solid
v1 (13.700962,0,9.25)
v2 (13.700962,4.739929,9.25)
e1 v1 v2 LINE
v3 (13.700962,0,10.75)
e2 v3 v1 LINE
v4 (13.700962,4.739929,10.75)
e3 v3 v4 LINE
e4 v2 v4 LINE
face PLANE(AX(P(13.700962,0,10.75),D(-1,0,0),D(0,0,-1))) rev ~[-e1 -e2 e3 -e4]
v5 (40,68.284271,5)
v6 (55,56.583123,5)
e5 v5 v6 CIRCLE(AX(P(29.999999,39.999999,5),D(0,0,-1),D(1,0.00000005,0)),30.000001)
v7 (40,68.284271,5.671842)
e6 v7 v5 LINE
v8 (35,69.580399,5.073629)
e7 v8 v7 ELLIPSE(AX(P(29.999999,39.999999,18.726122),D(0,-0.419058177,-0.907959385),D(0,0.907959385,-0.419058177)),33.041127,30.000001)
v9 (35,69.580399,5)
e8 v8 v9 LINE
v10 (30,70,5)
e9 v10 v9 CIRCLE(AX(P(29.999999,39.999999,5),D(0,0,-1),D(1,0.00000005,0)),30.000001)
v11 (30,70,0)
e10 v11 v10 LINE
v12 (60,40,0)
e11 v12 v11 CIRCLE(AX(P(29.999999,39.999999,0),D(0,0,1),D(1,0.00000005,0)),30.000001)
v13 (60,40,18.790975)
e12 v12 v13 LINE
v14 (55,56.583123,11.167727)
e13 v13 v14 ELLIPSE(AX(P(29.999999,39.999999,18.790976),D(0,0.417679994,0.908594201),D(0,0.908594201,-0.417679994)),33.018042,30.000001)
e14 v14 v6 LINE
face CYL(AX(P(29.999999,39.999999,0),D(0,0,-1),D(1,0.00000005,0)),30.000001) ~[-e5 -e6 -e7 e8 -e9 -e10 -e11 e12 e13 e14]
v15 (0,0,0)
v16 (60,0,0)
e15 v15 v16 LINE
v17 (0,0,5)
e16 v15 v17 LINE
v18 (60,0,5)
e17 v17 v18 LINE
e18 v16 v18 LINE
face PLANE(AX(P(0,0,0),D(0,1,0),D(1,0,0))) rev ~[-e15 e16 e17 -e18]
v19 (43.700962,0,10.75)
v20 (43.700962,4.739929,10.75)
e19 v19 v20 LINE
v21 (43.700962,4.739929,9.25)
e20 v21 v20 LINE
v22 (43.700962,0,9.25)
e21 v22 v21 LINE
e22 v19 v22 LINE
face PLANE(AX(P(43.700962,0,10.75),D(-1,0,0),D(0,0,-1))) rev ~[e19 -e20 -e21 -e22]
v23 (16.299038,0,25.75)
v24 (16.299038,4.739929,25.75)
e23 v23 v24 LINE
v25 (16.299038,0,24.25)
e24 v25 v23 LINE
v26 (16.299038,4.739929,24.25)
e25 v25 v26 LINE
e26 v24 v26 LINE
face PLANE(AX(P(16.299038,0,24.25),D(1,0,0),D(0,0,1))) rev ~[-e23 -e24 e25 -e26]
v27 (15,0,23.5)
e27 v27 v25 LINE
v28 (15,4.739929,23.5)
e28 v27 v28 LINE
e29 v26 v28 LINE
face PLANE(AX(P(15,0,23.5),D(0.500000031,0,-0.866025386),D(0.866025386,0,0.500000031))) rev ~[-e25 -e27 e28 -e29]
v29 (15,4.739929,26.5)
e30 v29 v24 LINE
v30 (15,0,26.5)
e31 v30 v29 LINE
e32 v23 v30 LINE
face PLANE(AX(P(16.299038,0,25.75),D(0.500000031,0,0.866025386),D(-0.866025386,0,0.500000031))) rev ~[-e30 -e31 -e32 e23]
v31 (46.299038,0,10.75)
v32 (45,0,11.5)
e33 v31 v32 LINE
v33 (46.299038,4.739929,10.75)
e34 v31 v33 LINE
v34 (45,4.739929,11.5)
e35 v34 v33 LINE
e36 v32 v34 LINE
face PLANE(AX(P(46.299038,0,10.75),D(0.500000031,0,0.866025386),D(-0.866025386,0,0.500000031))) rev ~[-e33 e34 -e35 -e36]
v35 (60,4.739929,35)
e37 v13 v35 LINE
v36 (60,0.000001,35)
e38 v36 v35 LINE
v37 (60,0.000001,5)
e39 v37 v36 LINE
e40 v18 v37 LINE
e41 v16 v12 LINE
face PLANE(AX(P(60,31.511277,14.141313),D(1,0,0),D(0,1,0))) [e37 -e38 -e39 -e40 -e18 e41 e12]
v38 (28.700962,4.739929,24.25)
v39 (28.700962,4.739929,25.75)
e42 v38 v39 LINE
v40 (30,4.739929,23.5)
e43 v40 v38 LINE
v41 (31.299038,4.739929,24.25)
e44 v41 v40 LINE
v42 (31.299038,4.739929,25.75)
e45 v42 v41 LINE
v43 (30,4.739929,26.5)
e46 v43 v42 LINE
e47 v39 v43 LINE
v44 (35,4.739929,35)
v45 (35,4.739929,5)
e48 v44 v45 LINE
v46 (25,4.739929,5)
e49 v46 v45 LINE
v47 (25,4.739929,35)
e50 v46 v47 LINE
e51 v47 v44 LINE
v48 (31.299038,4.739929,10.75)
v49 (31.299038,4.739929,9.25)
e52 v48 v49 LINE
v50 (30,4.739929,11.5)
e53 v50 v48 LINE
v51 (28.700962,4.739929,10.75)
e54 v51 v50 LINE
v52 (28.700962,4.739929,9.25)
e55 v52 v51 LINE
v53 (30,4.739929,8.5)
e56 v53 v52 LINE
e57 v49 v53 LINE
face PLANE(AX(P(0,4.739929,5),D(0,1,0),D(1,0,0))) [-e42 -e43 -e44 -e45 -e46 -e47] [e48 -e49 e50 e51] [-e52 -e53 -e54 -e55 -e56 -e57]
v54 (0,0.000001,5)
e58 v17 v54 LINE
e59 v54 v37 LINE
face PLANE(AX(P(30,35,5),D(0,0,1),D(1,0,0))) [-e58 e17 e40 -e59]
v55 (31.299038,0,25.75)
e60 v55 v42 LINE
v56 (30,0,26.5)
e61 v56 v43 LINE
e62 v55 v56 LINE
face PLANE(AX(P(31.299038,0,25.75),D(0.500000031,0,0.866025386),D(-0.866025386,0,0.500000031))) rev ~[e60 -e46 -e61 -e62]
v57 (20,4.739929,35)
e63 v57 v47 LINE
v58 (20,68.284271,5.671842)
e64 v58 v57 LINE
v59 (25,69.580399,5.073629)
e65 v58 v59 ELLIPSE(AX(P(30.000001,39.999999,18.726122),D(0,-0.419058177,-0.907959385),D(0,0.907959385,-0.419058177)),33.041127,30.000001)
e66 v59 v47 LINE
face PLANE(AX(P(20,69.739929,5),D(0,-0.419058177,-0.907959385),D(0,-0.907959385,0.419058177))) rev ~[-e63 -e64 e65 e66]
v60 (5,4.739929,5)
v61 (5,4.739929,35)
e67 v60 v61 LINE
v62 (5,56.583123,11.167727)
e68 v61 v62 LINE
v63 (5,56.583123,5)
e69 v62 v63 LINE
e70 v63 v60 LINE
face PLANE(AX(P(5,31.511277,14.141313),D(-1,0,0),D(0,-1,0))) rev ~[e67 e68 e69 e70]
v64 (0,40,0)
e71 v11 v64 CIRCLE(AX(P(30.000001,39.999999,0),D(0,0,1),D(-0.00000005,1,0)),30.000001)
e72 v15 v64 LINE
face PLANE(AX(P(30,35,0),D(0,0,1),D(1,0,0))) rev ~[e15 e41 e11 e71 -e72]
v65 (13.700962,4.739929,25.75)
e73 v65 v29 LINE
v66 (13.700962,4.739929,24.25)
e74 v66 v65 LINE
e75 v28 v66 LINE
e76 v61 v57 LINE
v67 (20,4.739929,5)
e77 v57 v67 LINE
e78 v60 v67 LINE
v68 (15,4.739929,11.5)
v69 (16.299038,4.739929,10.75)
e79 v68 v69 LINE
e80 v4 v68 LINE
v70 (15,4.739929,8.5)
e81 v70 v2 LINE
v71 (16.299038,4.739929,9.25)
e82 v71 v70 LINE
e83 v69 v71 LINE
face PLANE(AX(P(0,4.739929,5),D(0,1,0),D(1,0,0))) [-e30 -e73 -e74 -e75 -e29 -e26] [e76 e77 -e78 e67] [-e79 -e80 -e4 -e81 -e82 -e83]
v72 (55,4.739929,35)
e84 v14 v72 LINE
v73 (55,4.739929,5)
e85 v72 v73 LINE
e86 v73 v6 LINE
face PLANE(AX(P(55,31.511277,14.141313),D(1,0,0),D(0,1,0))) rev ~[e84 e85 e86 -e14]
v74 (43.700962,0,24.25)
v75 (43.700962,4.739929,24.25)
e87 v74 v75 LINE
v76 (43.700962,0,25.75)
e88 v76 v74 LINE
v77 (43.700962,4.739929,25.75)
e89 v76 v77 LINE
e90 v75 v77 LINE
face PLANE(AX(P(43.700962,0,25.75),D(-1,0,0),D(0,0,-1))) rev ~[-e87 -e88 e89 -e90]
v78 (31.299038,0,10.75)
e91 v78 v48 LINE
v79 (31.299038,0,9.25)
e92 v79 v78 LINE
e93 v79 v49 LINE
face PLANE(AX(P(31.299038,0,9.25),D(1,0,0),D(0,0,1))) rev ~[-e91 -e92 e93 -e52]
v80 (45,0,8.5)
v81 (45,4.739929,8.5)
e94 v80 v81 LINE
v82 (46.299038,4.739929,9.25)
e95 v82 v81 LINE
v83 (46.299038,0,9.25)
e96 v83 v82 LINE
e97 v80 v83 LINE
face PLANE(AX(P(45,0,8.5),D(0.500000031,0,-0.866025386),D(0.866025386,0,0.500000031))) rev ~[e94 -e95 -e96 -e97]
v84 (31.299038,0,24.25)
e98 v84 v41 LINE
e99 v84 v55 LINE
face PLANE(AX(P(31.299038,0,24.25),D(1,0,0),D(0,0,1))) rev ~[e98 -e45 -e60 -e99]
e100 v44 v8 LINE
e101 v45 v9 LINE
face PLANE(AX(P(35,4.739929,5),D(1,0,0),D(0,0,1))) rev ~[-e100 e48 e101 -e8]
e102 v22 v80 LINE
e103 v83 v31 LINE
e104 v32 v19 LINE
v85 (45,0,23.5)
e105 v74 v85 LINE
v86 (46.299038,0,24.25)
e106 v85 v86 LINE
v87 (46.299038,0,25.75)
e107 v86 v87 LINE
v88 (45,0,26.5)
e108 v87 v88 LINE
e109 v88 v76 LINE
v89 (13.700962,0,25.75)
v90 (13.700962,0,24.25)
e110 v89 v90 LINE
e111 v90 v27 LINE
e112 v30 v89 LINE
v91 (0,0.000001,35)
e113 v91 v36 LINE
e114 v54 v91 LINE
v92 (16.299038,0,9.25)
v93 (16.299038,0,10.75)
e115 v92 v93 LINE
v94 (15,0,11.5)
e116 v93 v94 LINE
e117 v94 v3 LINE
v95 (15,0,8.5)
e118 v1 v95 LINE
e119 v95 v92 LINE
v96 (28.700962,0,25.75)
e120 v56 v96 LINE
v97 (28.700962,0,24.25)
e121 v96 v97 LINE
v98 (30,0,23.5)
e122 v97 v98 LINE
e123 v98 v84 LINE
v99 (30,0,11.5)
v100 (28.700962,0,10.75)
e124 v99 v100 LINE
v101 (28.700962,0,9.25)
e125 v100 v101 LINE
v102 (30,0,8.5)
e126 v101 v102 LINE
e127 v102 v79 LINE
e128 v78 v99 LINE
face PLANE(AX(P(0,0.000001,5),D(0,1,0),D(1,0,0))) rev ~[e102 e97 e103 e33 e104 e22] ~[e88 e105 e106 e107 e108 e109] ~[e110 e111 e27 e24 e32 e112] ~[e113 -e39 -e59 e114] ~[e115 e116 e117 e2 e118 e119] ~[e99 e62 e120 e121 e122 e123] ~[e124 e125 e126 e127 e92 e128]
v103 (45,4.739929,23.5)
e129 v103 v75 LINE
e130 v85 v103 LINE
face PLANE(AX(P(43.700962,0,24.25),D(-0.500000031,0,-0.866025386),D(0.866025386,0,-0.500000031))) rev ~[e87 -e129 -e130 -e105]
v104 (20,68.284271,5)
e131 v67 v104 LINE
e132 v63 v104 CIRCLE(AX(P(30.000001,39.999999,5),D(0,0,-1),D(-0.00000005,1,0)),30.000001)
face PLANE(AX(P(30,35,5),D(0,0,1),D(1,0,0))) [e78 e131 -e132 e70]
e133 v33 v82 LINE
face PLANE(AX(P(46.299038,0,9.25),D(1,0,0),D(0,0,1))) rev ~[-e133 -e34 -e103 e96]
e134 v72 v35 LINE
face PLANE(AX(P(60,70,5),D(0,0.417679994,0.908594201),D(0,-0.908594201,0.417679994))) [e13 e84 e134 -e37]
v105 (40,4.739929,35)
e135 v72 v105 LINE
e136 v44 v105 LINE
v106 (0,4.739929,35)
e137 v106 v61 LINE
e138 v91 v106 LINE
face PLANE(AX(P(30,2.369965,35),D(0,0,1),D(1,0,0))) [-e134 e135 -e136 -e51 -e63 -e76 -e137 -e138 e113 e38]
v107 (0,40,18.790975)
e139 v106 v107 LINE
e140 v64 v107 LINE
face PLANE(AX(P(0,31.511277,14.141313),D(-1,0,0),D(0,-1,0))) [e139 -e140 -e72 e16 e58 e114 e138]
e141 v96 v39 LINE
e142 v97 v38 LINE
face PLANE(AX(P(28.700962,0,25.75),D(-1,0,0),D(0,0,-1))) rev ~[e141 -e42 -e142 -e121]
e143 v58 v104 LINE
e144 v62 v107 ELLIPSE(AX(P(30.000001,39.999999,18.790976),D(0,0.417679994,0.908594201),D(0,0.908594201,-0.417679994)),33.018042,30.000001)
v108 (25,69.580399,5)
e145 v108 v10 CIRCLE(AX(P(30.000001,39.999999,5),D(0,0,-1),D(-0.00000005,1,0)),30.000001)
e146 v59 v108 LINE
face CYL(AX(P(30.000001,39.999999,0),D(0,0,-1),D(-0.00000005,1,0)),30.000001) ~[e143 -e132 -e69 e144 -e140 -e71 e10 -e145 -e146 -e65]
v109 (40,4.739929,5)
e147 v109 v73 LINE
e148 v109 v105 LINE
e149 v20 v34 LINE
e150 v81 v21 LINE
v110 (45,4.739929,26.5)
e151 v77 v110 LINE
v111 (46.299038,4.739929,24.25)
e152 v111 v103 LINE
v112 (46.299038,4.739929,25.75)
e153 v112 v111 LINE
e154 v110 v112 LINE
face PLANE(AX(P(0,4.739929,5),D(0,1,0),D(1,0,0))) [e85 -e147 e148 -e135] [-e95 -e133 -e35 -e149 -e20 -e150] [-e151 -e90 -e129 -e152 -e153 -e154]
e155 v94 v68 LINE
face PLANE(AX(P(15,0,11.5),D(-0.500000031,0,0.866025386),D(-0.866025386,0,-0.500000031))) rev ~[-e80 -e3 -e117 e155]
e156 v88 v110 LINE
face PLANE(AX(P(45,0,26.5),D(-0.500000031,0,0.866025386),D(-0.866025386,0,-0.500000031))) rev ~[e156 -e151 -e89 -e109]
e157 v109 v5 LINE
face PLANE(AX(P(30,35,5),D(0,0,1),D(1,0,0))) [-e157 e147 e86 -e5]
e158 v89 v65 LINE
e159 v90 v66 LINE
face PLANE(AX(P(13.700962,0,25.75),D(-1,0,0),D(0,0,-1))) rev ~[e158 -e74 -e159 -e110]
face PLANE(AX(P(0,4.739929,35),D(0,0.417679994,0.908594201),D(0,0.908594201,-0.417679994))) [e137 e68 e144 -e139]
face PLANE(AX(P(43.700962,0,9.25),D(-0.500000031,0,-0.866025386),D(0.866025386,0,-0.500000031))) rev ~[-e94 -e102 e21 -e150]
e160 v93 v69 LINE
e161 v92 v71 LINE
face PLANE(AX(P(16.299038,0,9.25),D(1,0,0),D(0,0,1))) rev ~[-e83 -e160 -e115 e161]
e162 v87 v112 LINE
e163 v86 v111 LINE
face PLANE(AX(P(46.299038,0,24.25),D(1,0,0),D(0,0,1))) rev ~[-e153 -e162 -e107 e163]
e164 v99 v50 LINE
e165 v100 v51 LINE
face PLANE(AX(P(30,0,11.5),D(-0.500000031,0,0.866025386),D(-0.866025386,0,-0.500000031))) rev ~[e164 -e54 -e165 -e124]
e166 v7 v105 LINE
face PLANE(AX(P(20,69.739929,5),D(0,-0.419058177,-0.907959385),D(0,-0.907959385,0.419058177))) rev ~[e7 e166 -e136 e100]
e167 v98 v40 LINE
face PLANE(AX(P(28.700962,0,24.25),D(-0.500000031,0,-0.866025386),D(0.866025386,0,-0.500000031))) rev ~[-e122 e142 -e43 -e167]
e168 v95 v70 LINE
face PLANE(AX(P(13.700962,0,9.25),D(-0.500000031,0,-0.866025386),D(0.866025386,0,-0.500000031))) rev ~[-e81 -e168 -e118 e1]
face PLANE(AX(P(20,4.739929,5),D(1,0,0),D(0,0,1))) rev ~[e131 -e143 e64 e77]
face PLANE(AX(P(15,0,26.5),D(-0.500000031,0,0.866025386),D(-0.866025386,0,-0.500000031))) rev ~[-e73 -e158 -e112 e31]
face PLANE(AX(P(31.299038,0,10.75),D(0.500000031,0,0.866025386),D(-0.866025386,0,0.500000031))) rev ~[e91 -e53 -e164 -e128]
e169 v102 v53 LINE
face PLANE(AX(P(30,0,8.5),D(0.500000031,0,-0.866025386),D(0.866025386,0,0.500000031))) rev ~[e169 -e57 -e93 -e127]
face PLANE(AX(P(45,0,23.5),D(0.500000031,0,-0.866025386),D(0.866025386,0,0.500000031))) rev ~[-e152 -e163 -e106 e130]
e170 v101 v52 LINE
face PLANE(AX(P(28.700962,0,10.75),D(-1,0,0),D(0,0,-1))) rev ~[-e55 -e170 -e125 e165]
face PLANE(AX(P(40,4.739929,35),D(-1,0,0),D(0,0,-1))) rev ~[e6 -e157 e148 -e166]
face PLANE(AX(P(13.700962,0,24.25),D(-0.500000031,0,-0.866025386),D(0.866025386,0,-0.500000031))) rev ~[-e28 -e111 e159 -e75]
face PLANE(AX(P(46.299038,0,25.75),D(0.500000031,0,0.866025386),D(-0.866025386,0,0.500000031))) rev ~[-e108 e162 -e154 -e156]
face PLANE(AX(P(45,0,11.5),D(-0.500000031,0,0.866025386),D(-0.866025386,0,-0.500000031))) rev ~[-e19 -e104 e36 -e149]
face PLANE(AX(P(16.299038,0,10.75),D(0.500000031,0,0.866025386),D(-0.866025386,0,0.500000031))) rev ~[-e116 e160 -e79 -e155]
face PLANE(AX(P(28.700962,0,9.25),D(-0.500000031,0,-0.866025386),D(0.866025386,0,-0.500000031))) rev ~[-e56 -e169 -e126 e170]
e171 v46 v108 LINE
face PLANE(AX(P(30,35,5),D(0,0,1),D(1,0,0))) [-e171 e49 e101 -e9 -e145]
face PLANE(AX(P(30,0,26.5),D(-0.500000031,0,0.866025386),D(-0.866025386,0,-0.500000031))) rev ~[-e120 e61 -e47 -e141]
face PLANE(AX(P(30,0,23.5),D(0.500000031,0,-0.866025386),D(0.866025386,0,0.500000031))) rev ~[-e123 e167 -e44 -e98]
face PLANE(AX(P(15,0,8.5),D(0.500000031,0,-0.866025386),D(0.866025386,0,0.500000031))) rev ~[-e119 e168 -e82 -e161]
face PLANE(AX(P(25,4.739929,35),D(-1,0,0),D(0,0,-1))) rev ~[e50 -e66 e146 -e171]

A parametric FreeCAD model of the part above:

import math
import FreeCAD as App
import Part
import Sketcher

V = App.Vector
Q = App.Units.Quantity

doc = App.newDocument("Part")
params = doc.addObject("Spreadsheet::Sheet", "Params")
for row, (alias, value) in enumerate([
    ("sketch1_width", "60 mm"),
    ("sketch1_height", "70 mm"),
    ("pad1_length", "5 mm"),
    ("sketch2_width", "60 mm"),
    ("pad2_length", "30 mm"),
    ("sketch3_height", "1.5 mm"),
    ("pocket1_length", "25 mm"),
    ("sketch4_height", "30 mm"),
    ("pad3_length", "5 mm"),
    ("sketch5_height", "30 mm"),
    ("pad4_length", "5 mm"),
    ("sketch6_width", "5 mm"),
    ("sketch6_height", "30 mm"),
    ("pad5_length", "65 mm"),
    ("sketch7_width", "65 mm"),
    ("pocket2_length", "25 mm"),
    ("sketch8_radius", "30.000001 mm"),
    ("sketch8_width", "10 mm"),
    ("sketch8_height", "40 mm"),
    ("pocket3_length", "25 mm"),
], start=1):
    params.set(f"A{row}", alias)
    params.set(f"B{row}", "=" + value)
    params.setAlias(f"B{row}", alias)

body = doc.addObject("PartDesign::Body", "Body")

sketch1 = body.newObject("Sketcher::SketchObject", "Sketch")
sketch1.AttachmentSupport = (doc.getObject("XY_Plane"), [""])
sketch1.MapMode = "FlatFace"
sketch1.addGeometry(Part.LineSegment(V(0, 70, 0), V(0, 0, 0)), False)
sketch1.addGeometry(Part.LineSegment(V(0, 0, 0), V(60, 0, 0)), False)
sketch1.addGeometry(Part.LineSegment(V(60, 0, 0), V(60, 70, 0)), False)
sketch1.addGeometry(Part.LineSegment(V(60, 70, 0), V(0, 70, 0)), False)
sketch1.addConstraint(Sketcher.Constraint("Coincident", 0, 2, 1, 1))
sketch1.addConstraint(Sketcher.Constraint("Coincident", 1, 2, 2, 1))
sketch1.addConstraint(Sketcher.Constraint("Coincident", 2, 2, 3, 1))
sketch1.addConstraint(Sketcher.Constraint("Coincident", 3, 2, 0, 1))
sketch1.addConstraint(Sketcher.Constraint("Vertical", 0))
sketch1.addConstraint(Sketcher.Constraint("Horizontal", 1))
sketch1.addConstraint(Sketcher.Constraint("Vertical", 2))
sketch1.addConstraint(Sketcher.Constraint("Horizontal", 3))
sketch1.addConstraint(Sketcher.Constraint("Coincident", 0, 2, -1, 1))
sketch1.addConstraint(Sketcher.Constraint("DistanceX", 1, 1, 1, 2, Q("60 mm")))
sketch1.addConstraint(Sketcher.Constraint("DistanceY", 0, 2, 0, 1, Q("70 mm")))
sketch1.setExpression("Constraints[9]", "Params.sketch1_width")
sketch1.setExpression("Constraints[10]", "Params.sketch1_height")
pad1 = body.newObject("PartDesign::Pad", "Pad")
pad1.Profile = sketch1
pad1.setExpression("Length", "Params.pad1_length")

sketch2 = body.newObject("Sketcher::SketchObject", "Sketch001")
sketch2.AttachmentSupport = (doc.getObject("XY_Plane"), [""])
sketch2.MapMode = "FlatFace"
sketch2.AttachmentOffset = App.Placement(V(0, 0, 5), App.Rotation())
sketch2.addGeometry(Part.LineSegment(V(0, 4.7, 0), V(0, 0, 0)), False)
sketch2.addGeometry(Part.LineSegment(V(0, 0, 0), V(60, 0, 0)), False)
sketch2.addGeometry(Part.LineSegment(V(60, 0, 0), V(60, 4.7, 0)), False)
sketch2.addGeometry(Part.LineSegment(V(60, 4.7, 0), V(0, 4.7, 0)), False)
sketch2.addConstraint(Sketcher.Constraint("Coincident", 0, 2, 1, 1))
sketch2.addConstraint(Sketcher.Constraint("Coincident", 1, 2, 2, 1))
sketch2.addConstraint(Sketcher.Constraint("Coincident", 2, 2, 3, 1))
sketch2.addConstraint(Sketcher.Constraint("Coincident", 3, 2, 0, 1))
sketch2.addConstraint(Sketcher.Constraint("Vertical", 0))
sketch2.addConstraint(Sketcher.Constraint("Horizontal", 1))
sketch2.addConstraint(Sketcher.Constraint("Vertical", 2))
sketch2.addConstraint(Sketcher.Constraint("Horizontal", 3))
sketch2.addConstraint(Sketcher.Constraint("Coincident", 0, 2, -1, 1))
sketch2.addConstraint(Sketcher.Constraint("DistanceX", 1, 1, 1, 2, Q("60 mm")))
sketch2.addConstraint(Sketcher.Constraint("DistanceY", 0, 2, 0, 1, Q("4.739929 mm")))
sketch2.setExpression("Constraints[9]", "Params.sketch2_width")
pad2 = body.newObject("PartDesign::Pad", "Pad001")
pad2.Profile = sketch2
pad2.setExpression("Length", "Params.pad2_length")

sketch3 = body.newObject("Sketcher::SketchObject", "Sketch002")
sketch3.AttachmentSupport = (doc.getObject("XZ_Plane"), [""])
sketch3.MapMode = "FlatFace"
sketch3.addGeometry(Part.LineSegment(V(13.7, 24.2, 0), V(15, 23.5, 0)), False)
sketch3.addGeometry(Part.LineSegment(V(15, 23.5, 0), V(16.3, 24.2, 0)), False)
sketch3.addGeometry(Part.LineSegment(V(16.3, 24.2, 0), V(16.3, 25.8, 0)), False)
sketch3.addGeometry(Part.LineSegment(V(16.3, 25.8, 0), V(15, 26.5, 0)), False)
sketch3.addGeometry(Part.LineSegment(V(15, 26.5, 0), V(13.7, 25.8, 0)), False)
sketch3.addGeometry(Part.LineSegment(V(13.7, 25.8, 0), V(13.7, 24.2, 0)), False)
sketch3.addGeometry(Part.LineSegment(V(28.7, 24.2, 0), V(30, 23.5, 0)), False)
sketch3.addGeometry(Part.LineSegment(V(30, 23.5, 0), V(31.3, 24.2, 0)), False)
sketch3.addGeometry(Part.LineSegment(V(31.3, 24.2, 0), V(31.3, 25.8, 0)), False)
sketch3.addGeometry(Part.LineSegment(V(31.3, 25.8, 0), V(30, 26.5, 0)), False)
sketch3.addGeometry(Part.LineSegment(V(30, 26.5, 0), V(28.7, 25.8, 0)), False)
sketch3.addGeometry(Part.LineSegment(V(28.7, 25.8, 0), V(28.7, 24.2, 0)), False)
sketch3.addGeometry(Part.LineSegment(V(43.7, 25.8, 0), V(43.7, 24.2, 0)), False)
sketch3.addGeometry(Part.LineSegment(V(43.7, 24.2, 0), V(45, 23.5, 0)), False)
sketch3.addGeometry(Part.LineSegment(V(45, 23.5, 0), V(46.3, 24.2, 0)), False)
sketch3.addGeometry(Part.LineSegment(V(46.3, 24.2, 0), V(46.3, 25.8, 0)), False)
sketch3.addGeometry(Part.LineSegment(V(46.3, 25.8, 0), V(45, 26.5, 0)), False)
sketch3.addGeometry(Part.LineSegment(V(45, 26.5, 0), V(43.7, 25.8, 0)), False)
sketch3.addGeometry(Part.LineSegment(V(43.7, 9.2, 0), V(45, 8.5, 0)), False)
sketch3.addGeometry(Part.LineSegment(V(45, 8.5, 0), V(46.3, 9.2, 0)), False)
sketch3.addGeometry(Part.LineSegment(V(46.3, 9.2, 0), V(46.3, 10.8, 0)), False)
sketch3.addGeometry(Part.LineSegment(V(46.3, 10.8, 0), V(45, 11.5, 0)), False)
sketch3.addGeometry(Part.LineSegment(V(45, 11.5, 0), V(43.7, 10.8, 0)), False)
sketch3.addGeometry(Part.LineSegment(V(43.7, 10.8, 0), V(43.7, 9.2, 0)), False)
sketch3.addGeometry(Part.LineSegment(V(30, 8.5, 0), V(31.3, 9.2, 0)), False)
sketch3.addGeometry(Part.LineSegment(V(31.3, 9.2, 0), V(31.3, 10.8, 0)), False)
sketch3.addGeometry(Part.LineSegment(V(31.3, 10.8, 0), V(30, 11.5, 0)), False)
sketch3.addGeometry(Part.LineSegment(V(30, 11.5, 0), V(28.7, 10.8, 0)), False)
sketch3.addGeometry(Part.LineSegment(V(28.7, 10.8, 0), V(28.7, 9.2, 0)), False)
sketch3.addGeometry(Part.LineSegment(V(28.7, 9.2, 0), V(30, 8.5, 0)), False)
sketch3.addGeometry(Part.LineSegment(V(16.3, 9.2, 0), V(16.3, 10.8, 0)), False)
sketch3.addGeometry(Part.LineSegment(V(16.3, 10.8, 0), V(15, 11.5, 0)), False)
sketch3.addGeometry(Part.LineSegment(V(15, 11.5, 0), V(13.7, 10.8, 0)), False)
sketch3.addGeometry(Part.LineSegment(V(13.7, 10.8, 0), V(13.7, 9.2, 0)), False)
sketch3.addGeometry(Part.LineSegment(V(13.7, 9.2, 0), V(15, 8.5, 0)), False)
sketch3.addGeometry(Part.LineSegment(V(15, 8.5, 0), V(16.3, 9.2, 0)), False)
sketch3.addConstraint(Sketcher.Constraint("Coincident", 0, 2, 1, 1))
sketch3.addConstraint(Sketcher.Constraint("Coincident", 1, 2, 2, 1))
sketch3.addConstraint(Sketcher.Constraint("Coincident", 2, 2, 3, 1))
sketch3.addConstraint(Sketcher.Constraint("Coincident", 3, 2, 4, 1))
sketch3.addConstraint(Sketcher.Constraint("Coincident", 4, 2, 5, 1))
sketch3.addConstraint(Sketcher.Constraint("Coincident", 5, 2, 0, 1))
sketch3.addConstraint(Sketcher.Constraint("Coincident", 6, 2, 7, 1))
sketch3.addConstraint(Sketcher.Constraint("Coincident", 7, 2, 8, 1))
sketch3.addConstraint(Sketcher.Constraint("Coincident", 8, 2, 9, 1))
sketch3.addConstraint(Sketcher.Constraint("Coincident", 9, 2, 10, 1))
sketch3.addConstraint(Sketcher.Constraint("Coincident", 10, 2, 11, 1))
sketch3.addConstraint(Sketcher.Constraint("Coincident", 11, 2, 6, 1))
sketch3.addConstraint(Sketcher.Constraint("Coincident", 12, 2, 13, 1))
sketch3.addConstraint(Sketcher.Constraint("Coincident", 13, 2, 14, 1))
sketch3.addConstraint(Sketcher.Constraint("Coincident", 14, 2, 15, 1))
sketch3.addConstraint(Sketcher.Constraint("Coincident", 15, 2, 16, 1))
sketch3.addConstraint(Sketcher.Constraint("Coincident", 16, 2, 17, 1))
sketch3.addConstraint(Sketcher.Constraint("Coincident", 17, 2, 12, 1))
sketch3.addConstraint(Sketcher.Constraint("Coincident", 18, 2, 19, 1))
sketch3.addConstraint(Sketcher.Constraint("Coincident", 19, 2, 20, 1))
sketch3.addConstraint(Sketcher.Constraint("Coincident", 20, 2, 21, 1))
sketch3.addConstraint(Sketcher.Constraint("Coincident", 21, 2, 22, 1))
sketch3.addConstraint(Sketcher.Constraint("Coincident", 22, 2, 23, 1))
sketch3.addConstraint(Sketcher.Constraint("Coincident", 23, 2, 18, 1))
sketch3.addConstraint(Sketcher.Constraint("Coincident", 24, 2, 25, 1))
sketch3.addConstraint(Sketcher.Constraint("Coincident", 25, 2, 26, 1))
sketch3.addConstraint(Sketcher.Constraint("Coincident", 26, 2, 27, 1))
sketch3.addConstraint(Sketcher.Constraint("Coincident", 27, 2, 28, 1))
sketch3.addConstraint(Sketcher.Constraint("Coincident", 28, 2, 29, 1))
sketch3.addConstraint(Sketcher.Constraint("Coincident", 29, 2, 24, 1))
sketch3.addConstraint(Sketcher.Constraint("Coincident", 30, 2, 31, 1))
sketch3.addConstraint(Sketcher.Constraint("Coincident", 31, 2, 32, 1))
sketch3.addConstraint(Sketcher.Constraint("Coincident", 32, 2, 33, 1))
sketch3.addConstraint(Sketcher.Constraint("Coincident", 33, 2, 34, 1))
sketch3.addConstraint(Sketcher.Constraint("Coincident", 34, 2, 35, 1))
sketch3.addConstraint(Sketcher.Constraint("Coincident", 35, 2, 30, 1))
sketch3.addConstraint(Sketcher.Constraint("Vertical", 2))
sketch3.addConstraint(Sketcher.Constraint("Vertical", 5))
sketch3.addConstraint(Sketcher.Constraint("Vertical", 8))
sketch3.addConstraint(Sketcher.Constraint("Vertical", 11))
sketch3.addConstraint(Sketcher.Constraint("Vertical", 12))
sketch3.addConstraint(Sketcher.Constraint("Vertical", 15))
sketch3.addConstraint(Sketcher.Constraint("Vertical", 20))
sketch3.addConstraint(Sketcher.Constraint("Vertical", 23))
sketch3.addConstraint(Sketcher.Constraint("Vertical", 25))
sketch3.addConstraint(Sketcher.Constraint("Vertical", 28))
sketch3.addConstraint(Sketcher.Constraint("Vertical", 30))
sketch3.addConstraint(Sketcher.Constraint("Vertical", 33))
sketch3.addConstraint(Sketcher.Constraint("Parallel", 0, 3))
sketch3.addConstraint(Sketcher.Constraint("Parallel", 1, 4))
sketch3.addConstraint(Sketcher.Constraint("Parallel", 3, 6))
sketch3.addConstraint(Sketcher.Constraint("Parallel", 4, 7))
sketch3.addConstraint(Sketcher.Constraint("Parallel", 6, 9))
sketch3.addConstraint(Sketcher.Constraint("Parallel", 7, 10))
sketch3.addConstraint(Sketcher.Constraint("Parallel", 9, 13))
sketch3.addConstraint(Sketcher.Constraint("Parallel", 10, 14))
sketch3.addConstraint(Sketcher.Constraint("Parallel", 13, 16))
sketch3.addConstraint(Sketcher.Constraint("Parallel", 14, 17))
sketch3.addConstraint(Sketcher.Constraint("Parallel", 16, 18))
sketch3.addConstraint(Sketcher.Constraint("Parallel", 17, 19))
sketch3.addConstraint(Sketcher.Constraint("Parallel", 18, 21))
sketch3.addConstraint(Sketcher.Constraint("Parallel", 19, 22))
sketch3.addConstraint(Sketcher.Constraint("Parallel", 22, 24))
sketch3.addConstraint(Sketcher.Constraint("Parallel", 21, 26))
sketch3.addConstraint(Sketcher.Constraint("Parallel", 24, 27))
sketch3.addConstraint(Sketcher.Constraint("Parallel", 26, 29))
sketch3.addConstraint(Sketcher.Constraint("Parallel", 29, 31))
sketch3.addConstraint(Sketcher.Constraint("Parallel", 27, 32))
sketch3.addConstraint(Sketcher.Constraint("Parallel", 31, 34))
sketch3.addConstraint(Sketcher.Constraint("Parallel", 32, 35))
sketch3.addConstraint(Sketcher.Constraint("Horizontal", 2, 2, 4, 2))
sketch3.addConstraint(Sketcher.Constraint("Horizontal", 1, 2, 5, 2))
sketch3.addConstraint(Sketcher.Constraint("Horizontal", 0, 2, 6, 2))
sketch3.addConstraint(Sketcher.Constraint("Horizontal", 5, 2, 7, 2))
sketch3.addConstraint(Sketcher.Constraint("Horizontal", 4, 2, 8, 2))
sketch3.addConstraint(Sketcher.Constraint("Horizontal", 3, 2, 9, 2))
sketch3.addConstraint(Sketcher.Constraint("Horizontal", 8, 2, 10, 2))
sketch3.addConstraint(Sketcher.Constraint("Horizontal", 11, 2, 12, 2))
sketch3.addConstraint(Sketcher.Constraint("Horizontal", 6, 2, 13, 2))
sketch3.addConstraint(Sketcher.Constraint("Horizontal", 12, 2, 14, 2))
sketch3.addConstraint(Sketcher.Constraint("Horizontal", 10, 2, 15, 2))
sketch3.addConstraint(Sketcher.Constraint("Horizontal", 9, 2, 16, 2))
sketch3.addConstraint(Sketcher.Constraint("Horizontal", 20, 2, 22, 2))
sketch3.addConstraint(Sketcher.Constraint("Horizontal", 19, 2, 23, 2))
sketch3.addConstraint(Sketcher.Constraint("Horizontal", 23, 2, 24, 2))
sketch3.addConstraint(Sketcher.Constraint("Horizontal", 22, 2, 25, 2))
sketch3.addConstraint(Sketcher.Constraint("Horizontal", 21, 2, 26, 2))
sketch3.addConstraint(Sketcher.Constraint("Horizontal", 25, 2, 27, 2))
sketch3.addConstraint(Sketcher.Constraint("Horizontal", 24, 2, 28, 2))
sketch3.addConstraint(Sketcher.Constraint("Horizontal", 27, 2, 30, 2))
sketch3.addConstraint(Sketcher.Constraint("Horizontal", 26, 2, 31, 2))
sketch3.addConstraint(Sketcher.Constraint("Horizontal", 30, 2, 32, 2))
sketch3.addConstraint(Sketcher.Constraint("Horizontal", 28, 2, 33, 2))
sketch3.addConstraint(Sketcher.Constraint("Horizontal", 29, 2, 34, 2))
sketch3.addConstraint(Sketcher.Constraint("Vertical", 0, 2, 3, 2))
sketch3.addConstraint(Sketcher.Constraint("Vertical", 16, 2, 18, 2))
sketch3.addConstraint(Sketcher.Constraint("Vertical", 15, 2, 19, 2))
sketch3.addConstraint(Sketcher.Constraint("Vertical", 8, 2, 24, 2))
sketch3.addConstraint(Sketcher.Constraint("Vertical", 2, 2, 30, 2))
sketch3.addConstraint(Sketcher.Constraint("Equal", 15, 20))
sketch3.addConstraint(Sketcher.Constraint("Angle", 0, Q("-30.000002 deg")))
sketch3.addConstraint(Sketcher.Constraint("DistanceY", 2, 1, 2, 2, Q("1.5 mm")))
sketch3.addConstraint(Sketcher.Constraint("DistanceX", -1, 1, 0, 2, Q("15 mm")))
sketch3.addConstraint(Sketcher.Constraint("DistanceX", -1, 1, 6, 2, Q("30 mm")))
sketch3.addConstraint(Sketcher.Constraint("DistanceX", -1, 1, 13, 2, Q("45 mm")))
sketch3.addConstraint(Sketcher.Constraint("DistanceY", 0, 2, 3, 2, Q("3 mm")))
sketch3.addConstraint(Sketcher.Constraint("DistanceY", 18, 2, 13, 2, Q("15 mm")))
sketch3.addConstraint(Sketcher.Constraint("DistanceY", -1, 1, 0, 2, Q("23.5 mm")))
sketch3.setExpression("Constraints[101]", "Params.sketch3_height")
pocket1 = body.newObject("PartDesign::Pocket", "Pocket")
pocket1.Profile = sketch3
pocket1.setExpression("Length", "Params.pocket1_length")

sketch4 = body.newObject("Sketcher::SketchObject", "Sketch003")
sketch4.AttachmentSupport = (doc.getObject("YZ_Plane"), [""])
sketch4.MapMode = "FlatFace"
sketch4.addGeometry(Part.LineSegment(V(5, 5, 0), V(5, 35, 0)), False)
sketch4.addGeometry(Part.LineSegment(V(5, 35, 0), V(70, 5, 0)), False)
sketch4.addGeometry(Part.LineSegment(V(70, 5, 0), V(5, 5, 0)), False)
sketch4.addConstraint(Sketcher.Constraint("Coincident", 0, 2, 1, 1))
sketch4.addConstraint(Sketcher.Constraint("Coincident", 1, 2, 2, 1))
sketch4.addConstraint(Sketcher.Constraint("Coincident", 2, 2, 0, 1))
sketch4.addConstraint(Sketcher.Constraint("Vertical", 0))
sketch4.addConstraint(Sketcher.Constraint("Horizontal", 2))
sketch4.addConstraint(Sketcher.Constraint("DistanceY", 0, 1, 0, 2, Q("30 mm")))
sketch4.addConstraint(Sketcher.Constraint("DistanceY", -1, 1, 0, 2, Q("35 mm")))
sketch4.addConstraint(Sketcher.Constraint("DistanceX", -1, 1, 1, 2, Q("70 mm")))
sketch4.addConstraint(Sketcher.Constraint("DistanceX", 2, 2, 2, 1, Q("65.260071 mm")))
sketch4.setExpression("Constraints[5]", "Params.sketch4_height")
pad3 = body.newObject("PartDesign::Pad", "Pad002")
pad3.Profile = sketch4
pad3.setExpression("Length", "Params.pad3_length")

sketch5 = body.newObject("Sketcher::SketchObject", "Sketch004")
sketch5.AttachmentSupport = (doc.getObject("YZ_Plane"), [""])
sketch5.MapMode = "FlatFace"
sketch5.AttachmentOffset = App.Placement(V(0, 0, 60), App.Rotation())
sketch5.addGeometry(Part.LineSegment(V(70, 5, 0), V(5, 35, 0)), False)
sketch5.addGeometry(Part.LineSegment(V(5, 35, 0), V(5, 5, 0)), False)
sketch5.addGeometry(Part.LineSegment(V(5, 5, 0), V(70, 5, 0)), False)
sketch5.addConstraint(Sketcher.Constraint("Coincident", 0, 2, 1, 1))
sketch5.addConstraint(Sketcher.Constraint("Coincident", 1, 2, 2, 1))
sketch5.addConstraint(Sketcher.Constraint("Coincident", 2, 2, 0, 1))
sketch5.addConstraint(Sketcher.Constraint("Vertical", 1))
sketch5.addConstraint(Sketcher.Constraint("Horizontal", 2))
sketch5.addConstraint(Sketcher.Constraint("DistanceY", 1, 2, 1, 1, Q("30 mm")))
sketch5.addConstraint(Sketcher.Constraint("DistanceY", -1, 1, 0, 2, Q("35 mm")))
sketch5.addConstraint(Sketcher.Constraint("DistanceX", -1, 1, 2, 2, Q("70 mm")))
sketch5.addConstraint(Sketcher.Constraint("DistanceX", 2, 1, 2, 2, Q("65.260071 mm")))
sketch5.setExpression("Constraints[5]", "Params.sketch5_height")
pad4 = body.newObject("PartDesign::Pad", "Pad003")
pad4.Profile = sketch5
pad4.setExpression("Length", "Params.pad4_length")
pad4.Reversed = True

sketch6 = body.newObject("Sketcher::SketchObject", "Sketch005")
sketch6.AttachmentSupport = (doc.getObject("XZ_Plane"), [""])
sketch6.MapMode = "FlatFace"
sketch6.AttachmentOffset = App.Placement(V(0, 0, -4.739929), App.Rotation())
sketch6.addGeometry(Part.LineSegment(V(35, 35, 0), V(40, 35, 0)), False)
sketch6.addGeometry(Part.LineSegment(V(40, 35, 0), V(40, 5, 0)), False)
sketch6.addGeometry(Part.LineSegment(V(40, 5, 0), V(35, 5, 0)), False)
sketch6.addGeometry(Part.LineSegment(V(35, 5, 0), V(35, 35, 0)), False)
sketch6.addGeometry(Part.LineSegment(V(20, 35, 0), V(25, 35, 0)), False)
sketch6.addGeometry(Part.LineSegment(V(25, 35, 0), V(25, 5, 0)), False)
sketch6.addGeometry(Part.LineSegment(V(25, 5, 0), V(20, 5, 0)), False)
sketch6.addGeometry(Part.LineSegment(V(20, 5, 0), V(20, 35, 0)), False)
sketch6.addConstraint(Sketcher.Constraint("Coincident", 0, 2, 1, 1))
sketch6.addConstraint(Sketcher.Constraint("Coincident", 1, 2, 2, 1))
sketch6.addConstraint(Sketcher.Constraint("Coincident", 2, 2, 3, 1))
sketch6.addConstraint(Sketcher.Constraint("Coincident", 3, 2, 0, 1))
sketch6.addConstraint(Sketcher.Constraint("Coincident", 4, 2, 5, 1))
sketch6.addConstraint(Sketcher.Constraint("Coincident", 5, 2, 6, 1))
sketch6.addConstraint(Sketcher.Constraint("Coincident", 6, 2, 7, 1))
sketch6.addConstraint(Sketcher.Constraint("Coincident", 7, 2, 4, 1))
sketch6.addConstraint(Sketcher.Constraint("Horizontal", 0))
sketch6.addConstraint(Sketcher.Constraint("Vertical", 1))
sketch6.addConstraint(Sketcher.Constraint("Horizontal", 2))
sketch6.addConstraint(Sketcher.Constraint("Vertical", 3))
sketch6.addConstraint(Sketcher.Constraint("Horizontal", 4))
sketch6.addConstraint(Sketcher.Constraint("Vertical", 5))
sketch6.addConstraint(Sketcher.Constraint("Horizontal", 6))
sketch6.addConstraint(Sketcher.Constraint("Vertical", 7))
sketch6.addConstraint(Sketcher.Constraint("Horizontal", 3, 2, 4, 2))
sketch6.addConstraint(Sketcher.Constraint("Horizontal", 2, 2, 5, 2))
sketch6.addConstraint(Sketcher.Constraint("Equal", 2, 4))
sketch6.addConstraint(Sketcher.Constraint("DistanceX", 0, 1, 0, 2, Q("5 mm")))
sketch6.addConstraint(Sketcher.Constraint("DistanceY", 1, 2, 1, 1, Q("30 mm")))
sketch6.addConstraint(Sketcher.Constraint("DistanceX", -1, 1, 0, 2, Q("40 mm")))
sketch6.addConstraint(Sketcher.Constraint("DistanceY", -1, 1, 0, 2, Q("35 mm")))
sketch6.addConstraint(Sketcher.Constraint("DistanceX", -1, 1, 4, 2, Q("25 mm")))
sketch6.setExpression("Constraints[19]", "Params.sketch6_width")
sketch6.setExpression("Constraints[20]", "Params.sketch6_height")
pad5 = body.newObject("PartDesign::Pad", "Pad004")
pad5.Profile = sketch6
pad5.setExpression("Length", "Params.pad5_length")
pad5.Reversed = True

sketch7 = body.newObject("Sketcher::SketchObject", "Sketch006")
sketch7.AttachmentSupport = (doc.getObject("YZ_Plane"), [""])
sketch7.MapMode = "FlatFace"
sketch7.AttachmentOffset = App.Placement(V(0, 0, 20), App.Rotation())
sketch7.addGeometry(Part.LineSegment(V(70, 5, 0), V(5, 35, 0)), False)
sketch7.addGeometry(Part.LineSegment(V(5, 35, 0), V(5, 45, 0)), False)
sketch7.addGeometry(Part.LineSegment(V(5, 45, 0), V(70, 45, 0)), False)
sketch7.addGeometry(Part.LineSegment(V(70, 45, 0), V(70, 5, 0)), False)
sketch7.addConstraint(Sketcher.Constraint("Coincident", 0, 2, 1, 1))
sketch7.addConstraint(Sketcher.Constraint("Coincident", 1, 2, 2, 1))
sketch7.addConstraint(Sketcher.Constraint("Coincident", 2, 2, 3, 1))
sketch7.addConstraint(Sketcher.Constraint("Coincident", 3, 2, 0, 1))
sketch7.addConstraint(Sketcher.Constraint("Vertical", 1))
sketch7.addConstraint(Sketcher.Constraint("Horizontal", 2))
sketch7.addConstraint(Sketcher.Constraint("Vertical", 3))
sketch7.addConstraint(Sketcher.Constraint("DistanceX", 2, 1, 2, 2, Q("65 mm")))
sketch7.addConstraint(Sketcher.Constraint("DistanceY", -1, 1, 0, 2, Q("35 mm")))
sketch7.addConstraint(Sketcher.Constraint("DistanceY", -1, 1, 3, 2, Q("5 mm")))
sketch7.addConstraint(Sketcher.Constraint("DistanceY", 1, 1, 1, 2, Q("9.973344 mm")))
sketch7.addConstraint(Sketcher.Constraint("DistanceX", -1, 1, 0, 2, Q("4.739929 mm")))
sketch7.setExpression("Constraints[7]", "Params.sketch7_width")
pocket2 = body.newObject("PartDesign::Pocket", "Pocket001")
pocket2.Profile = sketch7
pocket2.setExpression("Length", "Params.pocket2_length")
pocket2.Reversed = True

sketch8 = body.newObject("Sketcher::SketchObject", "Sketch007")
sketch8.AttachmentSupport = (doc.getObject("XY_Plane"), [""])
sketch8.MapMode = "FlatFace"
sketch8.addGeometry(Part.ArcOfCircle(Part.Circle(V(30, 40, 0), V(0, 0, 1), 30), math.radians(90), math.radians(180)), False)
sketch8.addGeometry(Part.LineSegment(V(0, 40, 0), V(-10, 40, 0)), False)
sketch8.addGeometry(Part.LineSegment(V(-10, 40, 0), V(-10, 80, 0)), False)
sketch8.addGeometry(Part.LineSegment(V(-10, 80, 0), V(70, 80, 0)), False)
sketch8.addGeometry(Part.LineSegment(V(70, 80, 0), V(70, 40, 0)), False)
sketch8.addGeometry(Part.LineSegment(V(70, 40, 0), V(60, 40, 0)), False)
sketch8.addGeometry(Part.ArcOfCircle(Part.Circle(V(30, 40, 0), V(0, 0, 1), 30), math.radians(0), math.radians(90)), False)
sketch8.addConstraint(Sketcher.Constraint("Coincident", 0, 2, 1, 1))
sketch8.addConstraint(Sketcher.Constraint("Coincident", 1, 2, 2, 1))
sketch8.addConstraint(Sketcher.Constraint("Coincident", 2, 2, 3, 1))
sketch8.addConstraint(Sketcher.Constraint("Coincident", 3, 2, 4, 1))
sketch8.addConstraint(Sketcher.Constraint("Coincident", 4, 2, 5, 1))
sketch8.addConstraint(Sketcher.Constraint("Coincident", 5, 2, 6, 1))
sketch8.addConstraint(Sketcher.Constraint("Tangent", 6, 2, 0, 1))
sketch8.addConstraint(Sketcher.Constraint("Horizontal", 1))
sketch8.addConstraint(Sketcher.Constraint("Vertical", 2))
sketch8.addConstraint(Sketcher.Constraint("Horizontal", 3))
sketch8.addConstraint(Sketcher.Constraint("Vertical", 4))
sketch8.addConstraint(Sketcher.Constraint("Horizontal", 5))
sketch8.addConstraint(Sketcher.Constraint("Equal", 0, 6))
sketch8.addConstraint(Sketcher.Constraint("PointOnObject", 0, 2, -2))
sketch8.addConstraint(Sketcher.Constraint("Horizontal", 6, 3, 0, 2))
sketch8.addConstraint(Sketcher.Constraint("Horizontal", 1, 2, 4, 2))
sketch8.addConstraint(Sketcher.Constraint("Vertical", 0, 3, 6, 2))
sketch8.addConstraint(Sketcher.Constraint("Equal", 1, 5))
sketch8.addConstraint(Sketcher.Constraint("Radius", 0, Q("30.000001 mm")))
sketch8.addConstraint(Sketcher.Constraint("DistanceX", 1, 2, 1, 1, Q("10 mm")))
sketch8.addConstraint(Sketcher.Constraint("DistanceY", 2, 1, 2, 2, Q("40 mm")))
sketch8.addConstraint(Sketcher.Constraint("DistanceY", -1, 1, 0, 3, Q("39.999999 mm")))
sketch8.setExpression("Constraints[18]", "Params.sketch8_radius")
sketch8.setExpression("Constraints[19]", "Params.sketch8_width")
sketch8.setExpression("Constraints[20]", "Params.sketch8_height")
pocket3 = body.newObject("PartDesign::Pocket", "Pocket002")
pocket3.Profile = sketch8
pocket3.setExpression("Length", "Params.pocket3_length")
pocket3.Reversed = True

doc.recompute()
